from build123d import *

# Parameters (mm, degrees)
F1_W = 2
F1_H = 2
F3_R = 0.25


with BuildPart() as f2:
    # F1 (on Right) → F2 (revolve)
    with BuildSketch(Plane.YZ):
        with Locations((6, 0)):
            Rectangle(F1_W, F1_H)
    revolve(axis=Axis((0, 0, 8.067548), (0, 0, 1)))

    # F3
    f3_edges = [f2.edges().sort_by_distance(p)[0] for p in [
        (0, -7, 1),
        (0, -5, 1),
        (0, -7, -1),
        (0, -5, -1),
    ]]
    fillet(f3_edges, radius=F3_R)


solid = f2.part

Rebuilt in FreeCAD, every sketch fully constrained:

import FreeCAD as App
import Part
import Sketcher
from FreeCAD import Vector
Q = App.Units.Quantity


def edges_at(feature, points):
    """Names of the edges that pass closest to the given points."""
    edges = feature.Shape.Edges
    near = lambda p: min(range(len(edges)), key=lambda i: edges[i].distToShape(Part.Vertex(*p))[0])
    return sorted({f"Edge{near(p) + 1}" for p in points})

doc = App.newDocument("Part")
body = doc.addObject("PartDesign::Body", "Body")

sketch1 = doc.addObject("Sketcher::SketchObject", "Sketch")
body.addObject(sketch1)
sketch1.AttachmentSupport = (doc.YZ_Plane, [""])
sketch1.MapMode = "FlatFace"
sketch1.addGeometry([
    Part.LineSegment(Vector(5, 1, 0), Vector(5, -1, 0)),
    Part.LineSegment(Vector(5, -1, 0), Vector(7, -1, 0)),
    Part.LineSegment(Vector(7, -1, 0), Vector(7, 1, 0)),
    Part.LineSegment(Vector(7, 1, 0), Vector(5, 1, 0)),
], False)
sketch1.addConstraint([
    Sketcher.Constraint("Coincident", 0, 2, 1, 1),
    Sketcher.Constraint("Coincident", 1, 2, 2, 1),
    Sketcher.Constraint("Coincident", 2, 2, 3, 1),
    Sketcher.Constraint("Coincident", 3, 2, 0, 1),
    Sketcher.Constraint("Vertical", 0),
    Sketcher.Constraint("Horizontal", 1),
    Sketcher.Constraint("Vertical", 2),
    Sketcher.Constraint("Horizontal", 3),
    Sketcher.Constraint("Equal", 3, 0),
    Sketcher.Constraint("DistanceX", 1, 1, 1, 2, Q("2 mm")),
    Sketcher.Constraint("DistanceX", -1, 1, 0, 2, Q("5 mm")),
    Sketcher.Constraint("DistanceY", 0, 2, -1, 1, Q("1 mm")),
])
revolution = doc.addObject("PartDesign::Revolution", "Revolution")
body.addObject(revolution)
revolution.Profile = sketch1
revolution.ReferenceAxis = (sketch1, ["V_Axis"])
revolution.Angle = 360
doc.recompute()

fillet = doc.addObject("PartDesign::Fillet", "Fillet")
body.addObject(fillet)
fillet.Base = (revolution, edges_at(revolution, [
    (0, -7, 1),
    (0, -5, 1),
    (0, -7, -1),
    (0, -5, -1),
]))
fillet.Radius = 0.25

doc.recompute()
